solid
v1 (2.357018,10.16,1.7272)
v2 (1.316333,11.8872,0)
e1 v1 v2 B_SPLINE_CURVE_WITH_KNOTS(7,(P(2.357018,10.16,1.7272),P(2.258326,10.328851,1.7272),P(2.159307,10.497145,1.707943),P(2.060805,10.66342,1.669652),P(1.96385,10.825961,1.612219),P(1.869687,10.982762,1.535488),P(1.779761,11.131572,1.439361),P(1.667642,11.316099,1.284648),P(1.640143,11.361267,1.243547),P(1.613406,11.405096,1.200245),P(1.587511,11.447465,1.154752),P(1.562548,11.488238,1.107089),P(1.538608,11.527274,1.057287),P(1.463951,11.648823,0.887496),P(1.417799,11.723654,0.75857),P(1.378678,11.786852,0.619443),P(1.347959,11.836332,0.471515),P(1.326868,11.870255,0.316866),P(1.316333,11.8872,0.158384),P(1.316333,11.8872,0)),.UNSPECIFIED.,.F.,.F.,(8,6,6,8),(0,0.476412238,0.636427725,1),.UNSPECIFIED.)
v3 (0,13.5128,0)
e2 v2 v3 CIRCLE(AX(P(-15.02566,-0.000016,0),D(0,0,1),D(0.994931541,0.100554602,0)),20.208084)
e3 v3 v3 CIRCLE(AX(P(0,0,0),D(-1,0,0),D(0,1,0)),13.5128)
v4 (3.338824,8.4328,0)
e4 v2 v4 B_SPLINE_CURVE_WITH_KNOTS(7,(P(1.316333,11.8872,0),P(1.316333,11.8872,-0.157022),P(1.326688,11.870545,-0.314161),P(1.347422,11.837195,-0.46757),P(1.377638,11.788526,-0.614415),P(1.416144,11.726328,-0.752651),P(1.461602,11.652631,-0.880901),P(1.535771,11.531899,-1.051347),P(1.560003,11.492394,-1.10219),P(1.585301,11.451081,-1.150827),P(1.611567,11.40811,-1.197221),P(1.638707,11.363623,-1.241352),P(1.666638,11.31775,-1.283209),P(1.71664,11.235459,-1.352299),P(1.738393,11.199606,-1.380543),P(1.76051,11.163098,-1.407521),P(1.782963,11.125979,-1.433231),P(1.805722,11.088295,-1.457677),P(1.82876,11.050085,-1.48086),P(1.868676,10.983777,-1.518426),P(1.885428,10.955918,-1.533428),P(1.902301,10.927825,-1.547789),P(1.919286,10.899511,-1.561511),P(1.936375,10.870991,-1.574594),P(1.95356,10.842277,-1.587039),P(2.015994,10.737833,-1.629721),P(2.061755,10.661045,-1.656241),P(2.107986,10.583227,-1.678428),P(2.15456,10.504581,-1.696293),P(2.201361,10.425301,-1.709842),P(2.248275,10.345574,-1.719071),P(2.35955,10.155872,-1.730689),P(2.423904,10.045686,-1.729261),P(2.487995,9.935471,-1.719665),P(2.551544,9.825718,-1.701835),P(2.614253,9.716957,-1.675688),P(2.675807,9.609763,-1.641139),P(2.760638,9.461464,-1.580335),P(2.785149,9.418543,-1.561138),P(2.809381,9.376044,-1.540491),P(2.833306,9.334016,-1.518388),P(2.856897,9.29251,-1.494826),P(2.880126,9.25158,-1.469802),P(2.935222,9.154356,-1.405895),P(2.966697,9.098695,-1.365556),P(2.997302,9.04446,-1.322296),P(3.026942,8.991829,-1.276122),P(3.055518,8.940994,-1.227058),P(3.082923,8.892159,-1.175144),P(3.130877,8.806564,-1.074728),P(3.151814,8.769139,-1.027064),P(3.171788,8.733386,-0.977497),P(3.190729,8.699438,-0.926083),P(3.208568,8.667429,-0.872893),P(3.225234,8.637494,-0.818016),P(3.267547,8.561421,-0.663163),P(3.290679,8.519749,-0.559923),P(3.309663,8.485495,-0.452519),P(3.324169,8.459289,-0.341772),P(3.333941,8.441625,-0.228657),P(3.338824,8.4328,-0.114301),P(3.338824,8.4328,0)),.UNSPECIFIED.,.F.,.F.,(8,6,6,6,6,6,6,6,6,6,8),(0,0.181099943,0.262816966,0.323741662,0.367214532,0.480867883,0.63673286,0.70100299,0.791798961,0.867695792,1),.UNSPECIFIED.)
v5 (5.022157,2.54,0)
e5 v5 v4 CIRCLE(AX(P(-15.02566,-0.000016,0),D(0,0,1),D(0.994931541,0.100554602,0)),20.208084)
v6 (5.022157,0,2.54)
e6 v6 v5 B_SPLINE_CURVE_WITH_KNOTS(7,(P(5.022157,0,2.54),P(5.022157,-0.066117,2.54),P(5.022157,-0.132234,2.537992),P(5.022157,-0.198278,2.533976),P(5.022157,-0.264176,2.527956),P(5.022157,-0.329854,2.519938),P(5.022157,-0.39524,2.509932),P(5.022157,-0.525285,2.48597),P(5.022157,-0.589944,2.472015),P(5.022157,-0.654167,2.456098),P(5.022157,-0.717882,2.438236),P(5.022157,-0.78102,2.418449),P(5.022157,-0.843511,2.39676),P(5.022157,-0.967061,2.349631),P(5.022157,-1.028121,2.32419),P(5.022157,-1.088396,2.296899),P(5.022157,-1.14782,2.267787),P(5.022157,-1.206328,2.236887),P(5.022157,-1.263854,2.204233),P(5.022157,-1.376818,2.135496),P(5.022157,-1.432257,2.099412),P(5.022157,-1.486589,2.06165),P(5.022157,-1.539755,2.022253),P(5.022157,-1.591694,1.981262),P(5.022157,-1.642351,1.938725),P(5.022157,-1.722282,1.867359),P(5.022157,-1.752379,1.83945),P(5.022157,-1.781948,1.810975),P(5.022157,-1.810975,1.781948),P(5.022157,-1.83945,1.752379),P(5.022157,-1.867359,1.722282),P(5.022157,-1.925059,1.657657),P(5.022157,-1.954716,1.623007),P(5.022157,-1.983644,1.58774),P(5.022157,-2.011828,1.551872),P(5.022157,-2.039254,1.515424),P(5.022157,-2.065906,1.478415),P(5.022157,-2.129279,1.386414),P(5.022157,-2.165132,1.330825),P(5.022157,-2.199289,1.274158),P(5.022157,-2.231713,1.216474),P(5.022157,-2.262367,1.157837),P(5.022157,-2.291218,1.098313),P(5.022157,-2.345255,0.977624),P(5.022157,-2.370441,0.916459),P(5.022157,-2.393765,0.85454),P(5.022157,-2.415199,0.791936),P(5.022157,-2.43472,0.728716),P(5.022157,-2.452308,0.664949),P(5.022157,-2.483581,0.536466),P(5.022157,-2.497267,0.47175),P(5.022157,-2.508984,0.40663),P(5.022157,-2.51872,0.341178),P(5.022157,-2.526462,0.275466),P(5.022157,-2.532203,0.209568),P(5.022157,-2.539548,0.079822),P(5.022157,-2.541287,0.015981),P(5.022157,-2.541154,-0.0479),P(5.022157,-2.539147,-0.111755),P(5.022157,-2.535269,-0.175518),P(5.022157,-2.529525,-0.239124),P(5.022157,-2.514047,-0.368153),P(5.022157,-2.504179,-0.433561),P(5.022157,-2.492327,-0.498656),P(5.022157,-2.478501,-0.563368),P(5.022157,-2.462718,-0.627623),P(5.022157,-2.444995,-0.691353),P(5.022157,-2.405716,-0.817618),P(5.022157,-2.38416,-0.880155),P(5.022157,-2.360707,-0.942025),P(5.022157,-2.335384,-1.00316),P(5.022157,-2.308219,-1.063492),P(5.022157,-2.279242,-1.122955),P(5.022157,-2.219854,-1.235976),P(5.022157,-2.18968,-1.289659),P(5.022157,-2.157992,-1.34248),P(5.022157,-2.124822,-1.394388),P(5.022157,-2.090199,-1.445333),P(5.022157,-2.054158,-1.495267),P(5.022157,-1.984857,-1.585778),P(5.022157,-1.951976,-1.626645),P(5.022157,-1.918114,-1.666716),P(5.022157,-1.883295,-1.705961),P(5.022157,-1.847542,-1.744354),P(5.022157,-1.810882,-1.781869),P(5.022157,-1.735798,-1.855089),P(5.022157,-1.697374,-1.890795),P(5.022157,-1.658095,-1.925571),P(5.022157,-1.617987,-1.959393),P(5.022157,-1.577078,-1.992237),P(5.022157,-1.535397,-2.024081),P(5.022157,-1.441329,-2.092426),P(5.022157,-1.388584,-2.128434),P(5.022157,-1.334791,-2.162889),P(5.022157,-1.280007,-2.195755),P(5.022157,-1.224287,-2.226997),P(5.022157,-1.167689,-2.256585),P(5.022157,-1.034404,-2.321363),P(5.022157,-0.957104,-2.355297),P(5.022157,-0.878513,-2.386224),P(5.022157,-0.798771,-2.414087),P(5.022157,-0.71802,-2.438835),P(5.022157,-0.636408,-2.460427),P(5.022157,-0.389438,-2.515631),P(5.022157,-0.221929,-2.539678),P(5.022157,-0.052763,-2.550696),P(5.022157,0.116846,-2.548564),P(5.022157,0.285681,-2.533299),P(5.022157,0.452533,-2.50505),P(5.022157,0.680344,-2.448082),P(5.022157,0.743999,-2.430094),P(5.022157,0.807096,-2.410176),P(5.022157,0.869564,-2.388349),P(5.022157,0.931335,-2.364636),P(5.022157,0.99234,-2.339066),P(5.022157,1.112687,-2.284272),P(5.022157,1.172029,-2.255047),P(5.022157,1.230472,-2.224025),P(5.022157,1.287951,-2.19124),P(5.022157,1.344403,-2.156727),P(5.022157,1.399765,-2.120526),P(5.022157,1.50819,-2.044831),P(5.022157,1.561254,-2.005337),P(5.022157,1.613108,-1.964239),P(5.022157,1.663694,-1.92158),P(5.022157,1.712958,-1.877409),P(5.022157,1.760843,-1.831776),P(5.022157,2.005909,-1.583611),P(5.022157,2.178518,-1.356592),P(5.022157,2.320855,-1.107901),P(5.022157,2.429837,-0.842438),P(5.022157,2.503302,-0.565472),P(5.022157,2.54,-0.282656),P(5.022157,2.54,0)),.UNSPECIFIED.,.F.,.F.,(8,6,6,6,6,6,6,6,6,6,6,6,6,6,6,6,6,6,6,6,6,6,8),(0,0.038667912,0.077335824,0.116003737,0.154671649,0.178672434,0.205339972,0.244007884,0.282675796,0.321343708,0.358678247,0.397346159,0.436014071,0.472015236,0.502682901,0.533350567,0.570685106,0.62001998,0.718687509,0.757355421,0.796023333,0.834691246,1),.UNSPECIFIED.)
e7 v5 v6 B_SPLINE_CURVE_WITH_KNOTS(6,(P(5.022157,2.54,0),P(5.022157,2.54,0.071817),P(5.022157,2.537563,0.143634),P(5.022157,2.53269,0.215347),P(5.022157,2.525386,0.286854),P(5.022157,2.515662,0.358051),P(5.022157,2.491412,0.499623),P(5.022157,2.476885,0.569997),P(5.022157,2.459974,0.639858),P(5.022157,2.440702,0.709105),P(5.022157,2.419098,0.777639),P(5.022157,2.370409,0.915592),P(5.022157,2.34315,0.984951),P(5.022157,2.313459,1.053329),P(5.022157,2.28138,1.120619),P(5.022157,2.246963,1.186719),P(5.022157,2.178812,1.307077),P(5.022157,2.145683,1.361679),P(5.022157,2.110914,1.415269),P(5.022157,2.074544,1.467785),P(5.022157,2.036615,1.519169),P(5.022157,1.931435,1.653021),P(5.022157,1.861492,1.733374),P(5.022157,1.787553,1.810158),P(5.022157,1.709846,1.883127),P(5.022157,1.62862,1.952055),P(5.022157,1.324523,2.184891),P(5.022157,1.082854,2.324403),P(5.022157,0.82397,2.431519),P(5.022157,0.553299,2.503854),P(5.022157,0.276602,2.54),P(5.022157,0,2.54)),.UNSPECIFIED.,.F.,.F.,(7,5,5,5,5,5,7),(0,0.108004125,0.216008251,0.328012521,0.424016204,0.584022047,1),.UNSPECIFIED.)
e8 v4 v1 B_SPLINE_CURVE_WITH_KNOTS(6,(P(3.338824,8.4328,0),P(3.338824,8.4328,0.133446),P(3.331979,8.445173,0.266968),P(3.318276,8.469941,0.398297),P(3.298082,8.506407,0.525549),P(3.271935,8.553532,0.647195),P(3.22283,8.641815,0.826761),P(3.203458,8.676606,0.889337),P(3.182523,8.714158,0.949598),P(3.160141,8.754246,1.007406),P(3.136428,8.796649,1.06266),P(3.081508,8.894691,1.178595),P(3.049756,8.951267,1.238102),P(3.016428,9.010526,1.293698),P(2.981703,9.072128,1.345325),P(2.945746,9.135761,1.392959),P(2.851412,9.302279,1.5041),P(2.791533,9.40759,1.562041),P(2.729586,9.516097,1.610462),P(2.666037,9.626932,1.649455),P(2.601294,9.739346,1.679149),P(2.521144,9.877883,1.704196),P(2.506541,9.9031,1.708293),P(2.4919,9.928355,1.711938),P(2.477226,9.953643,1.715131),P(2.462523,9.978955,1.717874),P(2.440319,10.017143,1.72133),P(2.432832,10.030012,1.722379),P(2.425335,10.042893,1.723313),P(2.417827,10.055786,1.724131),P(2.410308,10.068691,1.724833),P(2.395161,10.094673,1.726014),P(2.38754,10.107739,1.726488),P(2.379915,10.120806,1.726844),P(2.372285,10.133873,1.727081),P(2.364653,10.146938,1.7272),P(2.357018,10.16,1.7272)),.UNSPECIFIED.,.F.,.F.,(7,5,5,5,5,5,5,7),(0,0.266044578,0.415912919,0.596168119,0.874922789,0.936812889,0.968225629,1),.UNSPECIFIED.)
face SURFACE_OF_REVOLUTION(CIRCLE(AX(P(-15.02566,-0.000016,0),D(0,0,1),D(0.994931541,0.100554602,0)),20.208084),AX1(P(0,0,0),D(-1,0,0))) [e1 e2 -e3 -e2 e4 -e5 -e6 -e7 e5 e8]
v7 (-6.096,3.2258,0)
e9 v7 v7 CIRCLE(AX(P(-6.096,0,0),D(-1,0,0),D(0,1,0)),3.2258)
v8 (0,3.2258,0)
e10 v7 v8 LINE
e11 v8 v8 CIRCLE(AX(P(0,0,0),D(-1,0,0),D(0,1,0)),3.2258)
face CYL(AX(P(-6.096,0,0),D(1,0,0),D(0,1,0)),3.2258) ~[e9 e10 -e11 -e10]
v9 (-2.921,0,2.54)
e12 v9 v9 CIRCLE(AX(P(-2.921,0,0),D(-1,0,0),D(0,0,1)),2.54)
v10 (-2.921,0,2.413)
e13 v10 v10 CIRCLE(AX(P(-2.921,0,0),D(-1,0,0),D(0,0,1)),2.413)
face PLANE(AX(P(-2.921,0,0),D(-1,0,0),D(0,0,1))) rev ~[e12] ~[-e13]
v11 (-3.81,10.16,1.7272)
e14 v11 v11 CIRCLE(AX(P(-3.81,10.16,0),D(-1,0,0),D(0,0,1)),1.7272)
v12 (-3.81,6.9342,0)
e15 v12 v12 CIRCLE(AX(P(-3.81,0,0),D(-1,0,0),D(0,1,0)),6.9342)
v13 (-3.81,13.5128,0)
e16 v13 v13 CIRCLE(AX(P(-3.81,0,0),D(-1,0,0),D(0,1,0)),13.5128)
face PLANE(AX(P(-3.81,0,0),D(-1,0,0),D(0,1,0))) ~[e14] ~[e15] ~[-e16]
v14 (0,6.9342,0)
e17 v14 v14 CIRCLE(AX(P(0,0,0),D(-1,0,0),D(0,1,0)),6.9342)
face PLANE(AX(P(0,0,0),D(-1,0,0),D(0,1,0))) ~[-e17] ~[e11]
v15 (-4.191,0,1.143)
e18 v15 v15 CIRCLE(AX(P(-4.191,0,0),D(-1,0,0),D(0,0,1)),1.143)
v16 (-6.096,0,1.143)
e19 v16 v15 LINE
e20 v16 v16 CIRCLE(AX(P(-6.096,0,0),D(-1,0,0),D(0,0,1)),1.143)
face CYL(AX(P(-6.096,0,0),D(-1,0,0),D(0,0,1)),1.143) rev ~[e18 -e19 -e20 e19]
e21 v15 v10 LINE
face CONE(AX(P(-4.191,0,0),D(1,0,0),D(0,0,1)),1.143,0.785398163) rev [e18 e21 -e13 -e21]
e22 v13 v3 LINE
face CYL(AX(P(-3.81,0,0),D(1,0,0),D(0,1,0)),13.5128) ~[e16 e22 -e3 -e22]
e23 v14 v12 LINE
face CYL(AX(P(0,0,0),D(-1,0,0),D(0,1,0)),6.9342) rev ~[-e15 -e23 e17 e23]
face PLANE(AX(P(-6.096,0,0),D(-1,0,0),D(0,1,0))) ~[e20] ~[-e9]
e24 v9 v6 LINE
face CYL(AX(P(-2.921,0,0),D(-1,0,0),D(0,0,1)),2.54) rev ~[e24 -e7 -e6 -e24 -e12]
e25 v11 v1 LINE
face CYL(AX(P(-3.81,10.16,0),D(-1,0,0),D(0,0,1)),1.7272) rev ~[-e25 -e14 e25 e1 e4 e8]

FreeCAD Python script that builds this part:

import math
import FreeCAD as App
import Part
import Sketcher
from FreeCAD import Vector
Q = App.Units.Quantity


def edges_at(feature, points):
    """Names of the edges that pass closest to the given points."""
    edges = feature.Shape.Edges
    near = lambda p: min(range(len(edges)), key=lambda i: edges[i].distToShape(Part.Vertex(*p))[0])
    return sorted({f"Edge{near(p) + 1}" for p in points})

doc = App.newDocument("Part")
body = doc.addObject("PartDesign::Body", "Body")

# Sketch on XY plane
sketch1 = doc.addObject("Sketcher::SketchObject", "Sketch")
body.addObject(sketch1)
sketch1.AttachmentSupport = (doc.XY_Plane, [""])
sketch1.MapMode = "FlatFace"
sketch1.addGeometry(Part.LineSegment(Vector(-6.1, 3.2, 0), Vector(-6.1, 2, 0)), False)
sketch1.addGeometry(Part.LineSegment(Vector(-6.1, 2, 0), Vector(5.1, 2, 0)), False)
sketch1.addGeometry(Part.ArcOfCircle(Part.Circle(Vector(-15, 0, 0), Vector(0, 0, 1), 20.2), math.radians(6), math.radians(42)), False)
sketch1.addGeometry(Part.LineSegment(Vector(0, 13.5, 0), Vector(-3.8, 13.5, 0)), False)
sketch1.addGeometry(Part.LineSegment(Vector(-3.8, 13.5, 0), Vector(-3.8, 6.9, 0)), False)
sketch1.addGeometry(Part.LineSegment(Vector(-3.8, 6.9, 0), Vector(0, 6.9, 0)), False)
sketch1.addGeometry(Part.LineSegment(Vector(0, 6.9, 0), Vector(0, 3.2, 0)), False)
sketch1.addGeometry(Part.LineSegment(Vector(0, 3.2, 0), Vector(-6.1, 3.2, 0)), False)
sketch1.addConstraint(Sketcher.Constraint("Coincident", 0, 2, 1, 1))
sketch1.addConstraint(Sketcher.Constraint("Coincident", 1, 2, 2, 1))
sketch1.addConstraint(Sketcher.Constraint("Coincident", 2, 2, 3, 1))
sketch1.addConstraint(Sketcher.Constraint("Coincident", 3, 2, 4, 1))
sketch1.addConstraint(Sketcher.Constraint("Coincident", 4, 2, 5, 1))
sketch1.addConstraint(Sketcher.Constraint("Coincident", 5, 2, 6, 1))
sketch1.addConstraint(Sketcher.Constraint("Coincident", 6, 2, 7, 1))
sketch1.addConstraint(Sketcher.Constraint("Coincident", 7, 2, 0, 1))
sketch1.addConstraint(Sketcher.Constraint("Vertical", 0))
sketch1.addConstraint(Sketcher.Constraint("Horizontal", 1))
sketch1.addConstraint(Sketcher.Constraint("Horizontal", 3))
sketch1.addConstraint(Sketcher.Constraint("Vertical", 4))
sketch1.addConstraint(Sketcher.Constraint("Horizontal", 5))
sketch1.addConstraint(Sketcher.Constraint("Vertical", 6))
sketch1.addConstraint(Sketcher.Constraint("Horizontal", 7))
sketch1.addConstraint(Sketcher.Constraint("PointOnObject", 2, 3, -1))
sketch1.addConstraint(Sketcher.Constraint("PointOnObject", 2, 2, -2))
sketch1.addConstraint(Sketcher.Constraint("PointOnObject", 5, 2, -2))
sketch1.addConstraint(Sketcher.Constraint("DistanceX", 3, 2, 3, 1, Q("0.15 in")))
sketch1.addConstraint(Sketcher.Constraint("DistanceX", 7, 2, 7, 1, Q("0.24 in")))
sketch1.addConstraint(Sketcher.Constraint("DistanceX", -1, 1, 1, 2, Q("0.2 in")))
sketch1.addConstraint(Sketcher.Constraint("DistanceY", -1, 1, 0, 2, Q("0.08 in")))
sketch1.addConstraint(Sketcher.Constraint("DistanceY", -1, 1, 2, 2, Q("0.532 in")))
sketch1.addConstraint(Sketcher.Constraint("DistanceY", -1, 1, 4, 2, Q("0.273 in")))
sketch1.addConstraint(Sketcher.Constraint("DistanceY", -1, 1, 6, 2, Q("0.127 in")))
revolution = doc.addObject("PartDesign::Revolution", "Revolution")
body.addObject(revolution)
revolution.Profile = sketch1
revolution.ReferenceAxis = (sketch1, ["H_Axis"])
revolution.Angle = 360

# Sketch on YZ plane
sketch2 = doc.addObject("Sketcher::SketchObject", "Sketch001")
body.addObject(sketch2)
sketch2.AttachmentSupport = (doc.YZ_Plane, [""])
sketch2.MapMode = "FlatFace"
sketch2.AttachmentOffset = App.Placement(Vector(0, 0, -0.15 * 25.4), App.Rotation())
sketch2.addGeometry(Part.Circle(Vector(10.2, 0, 0), Vector(0, 0, 1), 1.7), False)
sketch2.addConstraint(Sketcher.Constraint("PointOnObject", 0, 3, -1))
sketch2.addConstraint(Sketcher.Constraint("Diameter", 0, Q("0.136 in")))
sketch2.addConstraint(Sketcher.Constraint("DistanceX", -1, 1, 0, 3, Q("0.4 in")))
pocket1 = doc.addObject("PartDesign::Pocket", "Pocket")
body.addObject(pocket1)
pocket1.Profile = sketch2
pocket1.Type = "ThroughAll"
pocket1.Reversed = True

# Sketch on YZ plane
sketch3 = doc.addObject("Sketcher::SketchObject", "Sketch002")
body.addObject(sketch3)
sketch3.AttachmentSupport = (doc.YZ_Plane, [""])
sketch3.MapMode = "FlatFace"
sketch3.AttachmentOffset = App.Placement(Vector(0, 0, -0.24 * 25.4), App.Rotation())
sketch3.addGeometry(Part.Circle(Vector(0, 0, 0), Vector(0, 0, 1), 2), False)
sketch3.addGeometry(Part.Circle(Vector(0, 0, 0), Vector(0, 0, 1), 1.1), False)
sketch3.addConstraint(Sketcher.Constraint("Coincident", 0, 3, -1, 1))
sketch3.addConstraint(Sketcher.Constraint("Coincident", 1, 3, -1, 1))
sketch3.addConstraint(Sketcher.Constraint("Diameter", 1, Q("0.09 in")))
sketch3.addConstraint(Sketcher.Constraint("Diameter", 0, Q("0.16 in")))
pad1 = doc.addObject("PartDesign::Pad", "Pad")
body.addObject(pad1)
pad1.Profile = sketch3
pad1.Length = Q("0.44 in")

# Sketch on YZ plane
sketch4 = doc.addObject("Sketcher::SketchObject", "Sketch003")
body.addObject(sketch4)
sketch4.AttachmentSupport = (doc.YZ_Plane, [""])
sketch4.MapMode = "FlatFace"
sketch4.AttachmentOffset = App.Placement(Vector(0, 0, -0.115 * 25.4), App.Rotation())
sketch4.addGeometry(Part.Circle(Vector(0, 0, 0), Vector(0, 0, 1), 2.5), False)
sketch4.addConstraint(Sketcher.Constraint("Coincident", 0, 3, -1, 1))
sketch4.addConstraint(Sketcher.Constraint("Diameter", 0, Q("0.2 in")))
pocket2 = doc.addObject("PartDesign::Pocket", "Pocket001")
body.addObject(pocket2)
pocket2.Profile = sketch4
pocket2.Type = "ThroughAll"
pocket2.Reversed = True
doc.recompute()

chamfer = doc.addObject("PartDesign::Chamfer", "Chamfer")
body.addObject(chamfer)
chamfer.Base = (pocket2, edges_at(pocket2, [(-2.921, 0, -1.143)]))
chamfer.Size = Q("0.05 in")

doc.recompute()
